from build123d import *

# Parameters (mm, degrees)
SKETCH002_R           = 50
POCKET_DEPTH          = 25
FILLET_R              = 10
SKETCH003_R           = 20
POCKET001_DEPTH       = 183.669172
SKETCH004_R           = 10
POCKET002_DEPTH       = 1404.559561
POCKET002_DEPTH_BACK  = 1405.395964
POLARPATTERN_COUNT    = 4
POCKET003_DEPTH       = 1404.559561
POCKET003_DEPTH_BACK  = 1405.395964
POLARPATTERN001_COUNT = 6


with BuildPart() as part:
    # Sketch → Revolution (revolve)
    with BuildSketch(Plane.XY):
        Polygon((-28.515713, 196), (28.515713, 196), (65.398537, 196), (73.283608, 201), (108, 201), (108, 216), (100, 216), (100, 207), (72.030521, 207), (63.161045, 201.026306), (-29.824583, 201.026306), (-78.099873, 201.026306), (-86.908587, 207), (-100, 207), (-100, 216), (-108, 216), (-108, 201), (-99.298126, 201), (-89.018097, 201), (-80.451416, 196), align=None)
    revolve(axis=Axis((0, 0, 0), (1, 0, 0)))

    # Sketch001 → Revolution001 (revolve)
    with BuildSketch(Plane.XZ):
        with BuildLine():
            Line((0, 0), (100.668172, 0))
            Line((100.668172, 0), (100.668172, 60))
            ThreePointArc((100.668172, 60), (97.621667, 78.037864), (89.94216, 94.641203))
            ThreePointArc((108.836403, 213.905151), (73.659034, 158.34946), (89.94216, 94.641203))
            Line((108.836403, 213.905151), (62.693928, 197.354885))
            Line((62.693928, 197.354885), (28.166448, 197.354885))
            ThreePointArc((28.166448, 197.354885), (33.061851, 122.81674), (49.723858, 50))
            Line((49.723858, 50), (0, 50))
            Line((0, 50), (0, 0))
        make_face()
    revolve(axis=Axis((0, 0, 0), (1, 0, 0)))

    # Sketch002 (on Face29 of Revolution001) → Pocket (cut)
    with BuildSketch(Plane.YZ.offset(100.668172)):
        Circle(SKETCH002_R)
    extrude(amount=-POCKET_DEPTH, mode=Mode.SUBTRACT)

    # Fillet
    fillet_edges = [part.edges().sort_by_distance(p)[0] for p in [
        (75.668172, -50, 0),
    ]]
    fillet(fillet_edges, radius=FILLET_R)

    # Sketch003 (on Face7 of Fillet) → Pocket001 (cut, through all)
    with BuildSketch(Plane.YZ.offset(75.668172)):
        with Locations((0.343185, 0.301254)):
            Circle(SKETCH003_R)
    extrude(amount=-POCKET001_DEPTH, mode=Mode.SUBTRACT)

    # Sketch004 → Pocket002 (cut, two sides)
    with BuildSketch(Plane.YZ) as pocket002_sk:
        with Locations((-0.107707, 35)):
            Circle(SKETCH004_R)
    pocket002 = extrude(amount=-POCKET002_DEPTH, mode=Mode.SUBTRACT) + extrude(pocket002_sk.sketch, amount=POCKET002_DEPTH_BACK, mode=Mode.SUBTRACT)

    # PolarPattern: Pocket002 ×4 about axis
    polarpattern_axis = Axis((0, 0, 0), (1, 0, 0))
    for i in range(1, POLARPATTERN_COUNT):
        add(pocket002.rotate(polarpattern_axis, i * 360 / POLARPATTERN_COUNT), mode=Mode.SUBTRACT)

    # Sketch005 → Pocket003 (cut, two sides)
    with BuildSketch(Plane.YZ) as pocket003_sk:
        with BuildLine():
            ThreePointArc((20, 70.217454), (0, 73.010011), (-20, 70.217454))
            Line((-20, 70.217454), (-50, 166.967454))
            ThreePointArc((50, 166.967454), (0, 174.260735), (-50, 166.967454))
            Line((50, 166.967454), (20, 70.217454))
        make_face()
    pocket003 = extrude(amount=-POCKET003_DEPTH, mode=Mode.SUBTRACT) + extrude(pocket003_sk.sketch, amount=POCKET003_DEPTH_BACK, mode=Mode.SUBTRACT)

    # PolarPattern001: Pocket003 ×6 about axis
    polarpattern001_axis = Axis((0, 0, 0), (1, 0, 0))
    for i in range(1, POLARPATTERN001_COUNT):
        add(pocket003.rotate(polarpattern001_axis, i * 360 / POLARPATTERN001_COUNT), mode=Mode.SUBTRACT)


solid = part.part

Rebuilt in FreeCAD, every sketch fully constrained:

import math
import FreeCAD as App
import Part
import Sketcher
Q = App.Units.Quantity


def edges_at(feature, points):
    """Names of the edges that pass closest to the given points."""
    edges = feature.Shape.Edges
    near = lambda p: min(range(len(edges)), key=lambda i: edges[i].distToShape(Part.Vertex(*p))[0])
    return sorted({f"Edge{near(p) + 1}" for p in points})

doc = App.newDocument("Part")
body = doc.addObject("PartDesign::Body", "Body")

# Sketch on XY plane
sketch1 = body.newObject("Sketcher::SketchObject", "Sketch")
sketch1.AttachmentSupport = (doc.getObject("XY_Plane"), [""])
sketch1.MapMode = "FlatFace"
sketch1.addGeometry([
    Part.LineSegment(App.Vector(65, 196, 0), App.Vector(73, 201, 0)),  # 0
    Part.LineSegment(App.Vector(73, 201, 0), App.Vector(108, 201, 0)),  # 1
    Part.LineSegment(App.Vector(108, 201, 0), App.Vector(108, 216, 0)),  # 2
    Part.LineSegment(App.Vector(108, 216, 0), App.Vector(100, 216, 0)),  # 3
    Part.LineSegment(App.Vector(100, 216, 0), App.Vector(100, 207, 0)),  # 4
    Part.LineSegment(App.Vector(100, 207, 0), App.Vector(72, 207, 0)),  # 5
    Part.LineSegment(App.Vector(72, 207, 0), App.Vector(63, 201, 0)),  # 6
    Part.LineSegment(App.Vector(63, 201, 0), App.Vector(-78, 201, 0)),  # 7
    Part.LineSegment(App.Vector(-78, 201, 0), App.Vector(-87, 207, 0)),  # 8
    Part.LineSegment(App.Vector(-87, 207, 0), App.Vector(-100, 207, 0)),  # 9
    Part.LineSegment(App.Vector(-100, 207, 0), App.Vector(-100, 216, 0)),  # 10
    Part.LineSegment(App.Vector(-100, 216, 0), App.Vector(-108, 216, 0)),  # 11
    Part.LineSegment(App.Vector(-108, 216, 0), App.Vector(-108, 201, 0)),  # 12
    Part.LineSegment(App.Vector(-108, 201, 0), App.Vector(-89, 201, 0)),  # 13
    Part.LineSegment(App.Vector(-89, 201, 0), App.Vector(-80, 196, 0)),  # 14
    Part.LineSegment(App.Vector(-80, 196, 0), App.Vector(65, 196, 0)),  # 15
], False)
sketch1.addConstraint([
    Sketcher.Constraint("Coincident", 0, 2, 1, 1),
    Sketcher.Constraint("Coincident", 1, 2, 2, 1),
    Sketcher.Constraint("Coincident", 2, 2, 3, 1),
    Sketcher.Constraint("Coincident", 3, 2, 4, 1),
    Sketcher.Constraint("Coincident", 4, 2, 5, 1),
    Sketcher.Constraint("Coincident", 5, 2, 6, 1),
    Sketcher.Constraint("Coincident", 6, 2, 7, 1),
    Sketcher.Constraint("Coincident", 7, 2, 8, 1),
    Sketcher.Constraint("Coincident", 8, 2, 9, 1),
    Sketcher.Constraint("Coincident", 9, 2, 10, 1),
    Sketcher.Constraint("Coincident", 10, 2, 11, 1),
    Sketcher.Constraint("Coincident", 11, 2, 12, 1),
    Sketcher.Constraint("Coincident", 12, 2, 13, 1),
    Sketcher.Constraint("Coincident", 13, 2, 14, 1),
    Sketcher.Constraint("Coincident", 14, 2, 15, 1),
    Sketcher.Constraint("Coincident", 15, 2, 0, 1),
    Sketcher.Constraint("Horizontal", 1),
    Sketcher.Constraint("Vertical", 2),
    Sketcher.Constraint("Horizontal", 3),
    Sketcher.Constraint("Vertical", 4),
    Sketcher.Constraint("Horizontal", 5),
    Sketcher.Constraint("Horizontal", 7),
    Sketcher.Constraint("Horizontal", 9),
    Sketcher.Constraint("Vertical", 10),
    Sketcher.Constraint("Horizontal", 11),
    Sketcher.Constraint("Vertical", 12),
    Sketcher.Constraint("Horizontal", 13),
    Sketcher.Constraint("Horizontal", 15),
    Sketcher.Constraint("Symmetric", 4, 2, 9, 2, -2),
    Sketcher.Constraint("Symmetric", 2, 2, 11, 2, -2),
    Sketcher.Constraint("Horizontal", 1, 2, 12, 2),
    Sketcher.Constraint("DistanceX", 3, 2, 3, 1, Q("8 mm")),
    Sketcher.Constraint("DistanceY", 2, 1, 2, 2, Q("15 mm")),
    Sketcher.Constraint("DistanceY", 4, 2, 4, 1, Q("9 mm")),
    Sketcher.Constraint("DistanceY", -1, 1, 0, 2, Q("201 mm")),
    Sketcher.Constraint("DistanceX", -1, 1, 1, 2, Q("108 mm")),
    Sketcher.Constraint("DistanceY", -1, 1, 14, 2, Q("196 mm")),
    Sketcher.Constraint("DistanceX", 5, 2, 5, 1, Q("27.969479 mm")),
    Sketcher.Constraint("DistanceX", 7, 2, 7, 1, Q("141.260918 mm")),
    Sketcher.Constraint("Distance", 0, Q("9.33672 mm")),
    Sketcher.Constraint("Distance", 6, Q("10.693579 mm")),
    Sketcher.Constraint("DistanceX", 1, 1, 1, 2, Q("34.716392 mm")),
    Sketcher.Constraint("DistanceX", 9, 2, 9, 1, Q("13.091413 mm")),
    Sketcher.Constraint("DistanceX", 13, 1, 13, 2, Q("18.981903 mm")),
    Sketcher.Constraint("DistanceX", 15, 1, 15, 2, Q("145.849953 mm")),
    Sketcher.Constraint("DistanceX", 7, 2, 0, 2, Q("151.383481 mm")),
])
revolution = body.newObject("PartDesign::Revolution", "Revolution")
revolution.Profile = sketch1
revolution.ReferenceAxis = (sketch1, ["H_Axis"])
revolution.Angle = 360

# Sketch on XZ plane
sketch2 = body.newObject("Sketcher::SketchObject", "Sketch001")
sketch2.AttachmentSupport = (doc.getObject("XZ_Plane"), [""])
sketch2.MapMode = "FlatFace"
sketch2.addGeometry([
    Part.LineSegment(App.Vector(0, 0, 0), App.Vector(101, 0, 0)),  # 0
    Part.LineSegment(App.Vector(101, 0, 0), App.Vector(101, 60, 0)),  # 1
    Part.ArcOfCircle(Part.Circle(App.Vector(32, 58, 0), App.Vector(0, 0, 1), 69), math.radians(2), math.radians(32)),  # 2
    Part.ArcOfCircle(Part.Circle(App.Vector(156, 145, 0), App.Vector(0, 0, 1), 83), math.radians(124), math.radians(218)),  # 3
    Part.LineSegment(App.Vector(109, 214, 0), App.Vector(63, 197, 0)),  # 4
    Part.LineSegment(App.Vector(63, 197, 0), App.Vector(28, 197, 0)),  # 5
    Part.ArcOfCircle(Part.Circle(App.Vector(497, 191, 0), App.Vector(0, 0, 1), 469), math.radians(179.19), math.radians(197.45)),  # 6
    Part.LineSegment(App.Vector(50, 50, 0), App.Vector(0, 50, 0)),  # 7
    Part.LineSegment(App.Vector(0, 50, 0), App.Vector(0, 0, 0)),  # 8
], False)
sketch2.addConstraint([
    Sketcher.Constraint("Coincident", 0, 2, 1, 1),
    Sketcher.Constraint("Coincident", 1, 2, 2, 1),
    Sketcher.Constraint("Coincident", 2, 2, 3, 2),
    Sketcher.Constraint("Coincident", 3, 1, 4, 1),
    Sketcher.Constraint("Coincident", 4, 2, 5, 1),
    Sketcher.Constraint("Coincident", 5, 2, 6, 1),
    Sketcher.Constraint("Coincident", 6, 2, 7, 1),
    Sketcher.Constraint("Coincident", 7, 2, 8, 1),
    Sketcher.Constraint("Coincident", 8, 2, 0, 1),
    Sketcher.Constraint("Horizontal", 0),
    Sketcher.Constraint("Vertical", 1),
    Sketcher.Constraint("Horizontal", 5),
    Sketcher.Constraint("Horizontal", 7),
    Sketcher.Constraint("Vertical", 8),
    Sketcher.Constraint("Coincident", 8, 2, -1, 1),
    Sketcher.Constraint("DistanceY", 1, 1, 1, 2, Q("60 mm")),
    Sketcher.Constraint("DistanceY", 8, 2, 8, 1, Q("50 mm")),
    Sketcher.Constraint("Radius", 3, Q("82.988359 mm")),
    Sketcher.Constraint("Radius", 2, Q("68.999014 mm")),
    Sketcher.Constraint("Radius", 6, Q("469.220342 mm")),
    Sketcher.Constraint("DistanceX", 0, 2, 3, 3, Q("54.956998 mm")),
    Sketcher.Constraint("DistanceX", 0, 1, 0, 2, Q("100.668172 mm")),
    Sketcher.Constraint("DistanceX", 5, 2, 5, 1, Q("34.52748 mm")),
    Sketcher.Constraint("DistanceX", 6, 2, 2, 2, Q("40.218302 mm")),
    Sketcher.Constraint("DistanceX", 7, 2, 7, 1, Q("49.723858 mm")),
    Sketcher.Constraint("DistanceX", -1, 1, 2, 3, Q("31.70989 mm")),
    Sketcher.Constraint("DistanceY", -1, 1, 3, 1, Q("213.905151 mm")),
    Sketcher.Constraint("DistanceY", 2, 3, 6, 3, Q("133.10924 mm")),
    Sketcher.Constraint("DistanceY", 2, 2, 4, 2, Q("102.713682 mm")),
])
revolution2 = body.newObject("PartDesign::Revolution", "Revolution001")
revolution2.Profile = sketch2
revolution2.ReferenceAxis = (sketch2, ["H_Axis"])
revolution2.Angle = 360

# Sketch on YZ plane
sketch3 = body.newObject("Sketcher::SketchObject", "Sketch002")
sketch3.AttachmentSupport = (doc.getObject("YZ_Plane"), [""])
sketch3.MapMode = "FlatFace"
sketch3.AttachmentOffset = App.Placement(App.Vector(0, 0, 100.668172), App.Rotation())
sketch3.addGeometry(Part.Circle(App.Vector(0, 0, 0), App.Vector(0, 0, 1), 50), False)
sketch3.addConstraint([
    Sketcher.Constraint("Coincident", 0, 3, -1, 1),
    Sketcher.Constraint("Diameter", 0, Q("100 mm")),
])
pocket1 = body.newObject("PartDesign::Pocket", "Pocket")
pocket1.Profile = sketch3
pocket1.Length = 25
doc.recompute()

fillet = body.newObject("PartDesign::Fillet", "Fillet")
fillet.Base = (pocket1, edges_at(pocket1, [(75.668, -50, 0)]))
fillet.Radius = 10

# Sketch on YZ plane
sketch4 = body.newObject("Sketcher::SketchObject", "Sketch003")
sketch4.AttachmentSupport = (doc.getObject("YZ_Plane"), [""])
sketch4.MapMode = "FlatFace"
sketch4.AttachmentOffset = App.Placement(App.Vector(0, 0, 75.668172), App.Rotation())
sketch4.addGeometry(Part.Circle(App.Vector(0, 0, 0), App.Vector(0, 0, 1), 20), False)
sketch4.addConstraint([
    Sketcher.Constraint("Diameter", 0, Q("40 mm")),
    Sketcher.Constraint("DistanceX", -1, 1, 0, 3, Q("0.343185 mm")),
    Sketcher.Constraint("DistanceY", -1, 1, 0, 3, Q("0.301254 mm")),
])
pocket2 = body.newObject("PartDesign::Pocket", "Pocket001")
pocket2.Profile = sketch4
pocket2.Type = "ThroughAll"

# Sketch on YZ plane
sketch5 = body.newObject("Sketcher::SketchObject", "Sketch004")
sketch5.AttachmentSupport = (doc.getObject("YZ_Plane"), [""])
sketch5.MapMode = "FlatFace"
sketch5.addGeometry(Part.Circle(App.Vector(0, 35, 0), App.Vector(0, 0, 1), 10), False)
sketch5.addConstraint([
    Sketcher.Constraint("Diameter", 0, Q("20 mm")),
    Sketcher.Constraint("DistanceY", -1, 1, 0, 3, Q("35 mm")),
    Sketcher.Constraint("DistanceX", 0, 3, -1, 1, Q("0.107707 mm")),
])
pocket3 = body.newObject("PartDesign::Pocket", "Pocket002")
pocket3.Profile = sketch5
pocket3.Type = "ThroughAll"
pocket3.Midplane = True
doc.recompute()

polarpattern = body.newObject("PartDesign::PolarPattern", "PolarPattern")
polarpattern.Originals = [pocket3]
polarpattern.Axis = (doc.getObject("X_Axis"), [""])
polarpattern.Angle = 360
polarpattern.Occurrences = 4
body.Tip = polarpattern

# Sketch on YZ plane
sketch6 = body.newObject("Sketcher::SketchObject", "Sketch005")
sketch6.AttachmentSupport = (doc.getObject("YZ_Plane"), [""])
sketch6.MapMode = "FlatFace"
sketch6.addGeometry([
    Part.ArcOfCircle(Part.Circle(App.Vector(0, 0, 0), App.Vector(0, 0, 1), 73), math.radians(74), math.radians(106)),
    Part.LineSegment(App.Vector(20, 70, 0), App.Vector(50, 167, 0)),
    Part.ArcOfCircle(Part.Circle(App.Vector(0, -1, 0), App.Vector(0, 0, 1), 175), math.radians(73), math.radians(107)),
    Part.LineSegment(App.Vector(-50, 167, 0), App.Vector(-20, 70, 0)),
], False)
sketch6.addConstraint([
    Sketcher.Constraint("Coincident", 0, 1, 1, 1),
    Sketcher.Constraint("Coincident", 1, 2, 2, 1),
    Sketcher.Constraint("Coincident", 2, 2, 3, 1),
    Sketcher.Constraint("Coincident", 3, 2, 0, 2),
    Sketcher.Constraint("Symmetric", 1, 2, 2, 2, -2),
    Sketcher.Constraint("Symmetric", 0, 1, 3, 2, -2),
    Sketcher.Constraint("DistanceX", -1, 1, 0, 1, Q("20 mm")),
    Sketcher.Constraint("DistanceX", -1, 1, 1, 2, Q("50 mm")),
    Sketcher.Constraint("Radius", 0, Q("73.015228 mm")),
    Sketcher.Constraint("DistanceY", 0, 1, 1, 2, Q("96.75 mm")),
    Sketcher.Constraint("Radius", 2, Q("175.037267 mm")),
    Sketcher.Constraint("DistanceY", 0, 3, -1, 1, Q("0.005217 mm")),
])
pocket4 = body.newObject("PartDesign::Pocket", "Pocket003")
pocket4.Profile = sketch6
pocket4.Type = "ThroughAll"
pocket4.Midplane = True
doc.recompute()

polarpattern2 = body.newObject("PartDesign::PolarPattern", "PolarPattern001")
polarpattern2.Originals = [pocket4]
polarpattern2.Axis = (doc.getObject("X_Axis"), [""])
polarpattern2.Angle = 360
polarpattern2.Occurrences = 6
body.Tip = polarpattern2

doc.recompute()
